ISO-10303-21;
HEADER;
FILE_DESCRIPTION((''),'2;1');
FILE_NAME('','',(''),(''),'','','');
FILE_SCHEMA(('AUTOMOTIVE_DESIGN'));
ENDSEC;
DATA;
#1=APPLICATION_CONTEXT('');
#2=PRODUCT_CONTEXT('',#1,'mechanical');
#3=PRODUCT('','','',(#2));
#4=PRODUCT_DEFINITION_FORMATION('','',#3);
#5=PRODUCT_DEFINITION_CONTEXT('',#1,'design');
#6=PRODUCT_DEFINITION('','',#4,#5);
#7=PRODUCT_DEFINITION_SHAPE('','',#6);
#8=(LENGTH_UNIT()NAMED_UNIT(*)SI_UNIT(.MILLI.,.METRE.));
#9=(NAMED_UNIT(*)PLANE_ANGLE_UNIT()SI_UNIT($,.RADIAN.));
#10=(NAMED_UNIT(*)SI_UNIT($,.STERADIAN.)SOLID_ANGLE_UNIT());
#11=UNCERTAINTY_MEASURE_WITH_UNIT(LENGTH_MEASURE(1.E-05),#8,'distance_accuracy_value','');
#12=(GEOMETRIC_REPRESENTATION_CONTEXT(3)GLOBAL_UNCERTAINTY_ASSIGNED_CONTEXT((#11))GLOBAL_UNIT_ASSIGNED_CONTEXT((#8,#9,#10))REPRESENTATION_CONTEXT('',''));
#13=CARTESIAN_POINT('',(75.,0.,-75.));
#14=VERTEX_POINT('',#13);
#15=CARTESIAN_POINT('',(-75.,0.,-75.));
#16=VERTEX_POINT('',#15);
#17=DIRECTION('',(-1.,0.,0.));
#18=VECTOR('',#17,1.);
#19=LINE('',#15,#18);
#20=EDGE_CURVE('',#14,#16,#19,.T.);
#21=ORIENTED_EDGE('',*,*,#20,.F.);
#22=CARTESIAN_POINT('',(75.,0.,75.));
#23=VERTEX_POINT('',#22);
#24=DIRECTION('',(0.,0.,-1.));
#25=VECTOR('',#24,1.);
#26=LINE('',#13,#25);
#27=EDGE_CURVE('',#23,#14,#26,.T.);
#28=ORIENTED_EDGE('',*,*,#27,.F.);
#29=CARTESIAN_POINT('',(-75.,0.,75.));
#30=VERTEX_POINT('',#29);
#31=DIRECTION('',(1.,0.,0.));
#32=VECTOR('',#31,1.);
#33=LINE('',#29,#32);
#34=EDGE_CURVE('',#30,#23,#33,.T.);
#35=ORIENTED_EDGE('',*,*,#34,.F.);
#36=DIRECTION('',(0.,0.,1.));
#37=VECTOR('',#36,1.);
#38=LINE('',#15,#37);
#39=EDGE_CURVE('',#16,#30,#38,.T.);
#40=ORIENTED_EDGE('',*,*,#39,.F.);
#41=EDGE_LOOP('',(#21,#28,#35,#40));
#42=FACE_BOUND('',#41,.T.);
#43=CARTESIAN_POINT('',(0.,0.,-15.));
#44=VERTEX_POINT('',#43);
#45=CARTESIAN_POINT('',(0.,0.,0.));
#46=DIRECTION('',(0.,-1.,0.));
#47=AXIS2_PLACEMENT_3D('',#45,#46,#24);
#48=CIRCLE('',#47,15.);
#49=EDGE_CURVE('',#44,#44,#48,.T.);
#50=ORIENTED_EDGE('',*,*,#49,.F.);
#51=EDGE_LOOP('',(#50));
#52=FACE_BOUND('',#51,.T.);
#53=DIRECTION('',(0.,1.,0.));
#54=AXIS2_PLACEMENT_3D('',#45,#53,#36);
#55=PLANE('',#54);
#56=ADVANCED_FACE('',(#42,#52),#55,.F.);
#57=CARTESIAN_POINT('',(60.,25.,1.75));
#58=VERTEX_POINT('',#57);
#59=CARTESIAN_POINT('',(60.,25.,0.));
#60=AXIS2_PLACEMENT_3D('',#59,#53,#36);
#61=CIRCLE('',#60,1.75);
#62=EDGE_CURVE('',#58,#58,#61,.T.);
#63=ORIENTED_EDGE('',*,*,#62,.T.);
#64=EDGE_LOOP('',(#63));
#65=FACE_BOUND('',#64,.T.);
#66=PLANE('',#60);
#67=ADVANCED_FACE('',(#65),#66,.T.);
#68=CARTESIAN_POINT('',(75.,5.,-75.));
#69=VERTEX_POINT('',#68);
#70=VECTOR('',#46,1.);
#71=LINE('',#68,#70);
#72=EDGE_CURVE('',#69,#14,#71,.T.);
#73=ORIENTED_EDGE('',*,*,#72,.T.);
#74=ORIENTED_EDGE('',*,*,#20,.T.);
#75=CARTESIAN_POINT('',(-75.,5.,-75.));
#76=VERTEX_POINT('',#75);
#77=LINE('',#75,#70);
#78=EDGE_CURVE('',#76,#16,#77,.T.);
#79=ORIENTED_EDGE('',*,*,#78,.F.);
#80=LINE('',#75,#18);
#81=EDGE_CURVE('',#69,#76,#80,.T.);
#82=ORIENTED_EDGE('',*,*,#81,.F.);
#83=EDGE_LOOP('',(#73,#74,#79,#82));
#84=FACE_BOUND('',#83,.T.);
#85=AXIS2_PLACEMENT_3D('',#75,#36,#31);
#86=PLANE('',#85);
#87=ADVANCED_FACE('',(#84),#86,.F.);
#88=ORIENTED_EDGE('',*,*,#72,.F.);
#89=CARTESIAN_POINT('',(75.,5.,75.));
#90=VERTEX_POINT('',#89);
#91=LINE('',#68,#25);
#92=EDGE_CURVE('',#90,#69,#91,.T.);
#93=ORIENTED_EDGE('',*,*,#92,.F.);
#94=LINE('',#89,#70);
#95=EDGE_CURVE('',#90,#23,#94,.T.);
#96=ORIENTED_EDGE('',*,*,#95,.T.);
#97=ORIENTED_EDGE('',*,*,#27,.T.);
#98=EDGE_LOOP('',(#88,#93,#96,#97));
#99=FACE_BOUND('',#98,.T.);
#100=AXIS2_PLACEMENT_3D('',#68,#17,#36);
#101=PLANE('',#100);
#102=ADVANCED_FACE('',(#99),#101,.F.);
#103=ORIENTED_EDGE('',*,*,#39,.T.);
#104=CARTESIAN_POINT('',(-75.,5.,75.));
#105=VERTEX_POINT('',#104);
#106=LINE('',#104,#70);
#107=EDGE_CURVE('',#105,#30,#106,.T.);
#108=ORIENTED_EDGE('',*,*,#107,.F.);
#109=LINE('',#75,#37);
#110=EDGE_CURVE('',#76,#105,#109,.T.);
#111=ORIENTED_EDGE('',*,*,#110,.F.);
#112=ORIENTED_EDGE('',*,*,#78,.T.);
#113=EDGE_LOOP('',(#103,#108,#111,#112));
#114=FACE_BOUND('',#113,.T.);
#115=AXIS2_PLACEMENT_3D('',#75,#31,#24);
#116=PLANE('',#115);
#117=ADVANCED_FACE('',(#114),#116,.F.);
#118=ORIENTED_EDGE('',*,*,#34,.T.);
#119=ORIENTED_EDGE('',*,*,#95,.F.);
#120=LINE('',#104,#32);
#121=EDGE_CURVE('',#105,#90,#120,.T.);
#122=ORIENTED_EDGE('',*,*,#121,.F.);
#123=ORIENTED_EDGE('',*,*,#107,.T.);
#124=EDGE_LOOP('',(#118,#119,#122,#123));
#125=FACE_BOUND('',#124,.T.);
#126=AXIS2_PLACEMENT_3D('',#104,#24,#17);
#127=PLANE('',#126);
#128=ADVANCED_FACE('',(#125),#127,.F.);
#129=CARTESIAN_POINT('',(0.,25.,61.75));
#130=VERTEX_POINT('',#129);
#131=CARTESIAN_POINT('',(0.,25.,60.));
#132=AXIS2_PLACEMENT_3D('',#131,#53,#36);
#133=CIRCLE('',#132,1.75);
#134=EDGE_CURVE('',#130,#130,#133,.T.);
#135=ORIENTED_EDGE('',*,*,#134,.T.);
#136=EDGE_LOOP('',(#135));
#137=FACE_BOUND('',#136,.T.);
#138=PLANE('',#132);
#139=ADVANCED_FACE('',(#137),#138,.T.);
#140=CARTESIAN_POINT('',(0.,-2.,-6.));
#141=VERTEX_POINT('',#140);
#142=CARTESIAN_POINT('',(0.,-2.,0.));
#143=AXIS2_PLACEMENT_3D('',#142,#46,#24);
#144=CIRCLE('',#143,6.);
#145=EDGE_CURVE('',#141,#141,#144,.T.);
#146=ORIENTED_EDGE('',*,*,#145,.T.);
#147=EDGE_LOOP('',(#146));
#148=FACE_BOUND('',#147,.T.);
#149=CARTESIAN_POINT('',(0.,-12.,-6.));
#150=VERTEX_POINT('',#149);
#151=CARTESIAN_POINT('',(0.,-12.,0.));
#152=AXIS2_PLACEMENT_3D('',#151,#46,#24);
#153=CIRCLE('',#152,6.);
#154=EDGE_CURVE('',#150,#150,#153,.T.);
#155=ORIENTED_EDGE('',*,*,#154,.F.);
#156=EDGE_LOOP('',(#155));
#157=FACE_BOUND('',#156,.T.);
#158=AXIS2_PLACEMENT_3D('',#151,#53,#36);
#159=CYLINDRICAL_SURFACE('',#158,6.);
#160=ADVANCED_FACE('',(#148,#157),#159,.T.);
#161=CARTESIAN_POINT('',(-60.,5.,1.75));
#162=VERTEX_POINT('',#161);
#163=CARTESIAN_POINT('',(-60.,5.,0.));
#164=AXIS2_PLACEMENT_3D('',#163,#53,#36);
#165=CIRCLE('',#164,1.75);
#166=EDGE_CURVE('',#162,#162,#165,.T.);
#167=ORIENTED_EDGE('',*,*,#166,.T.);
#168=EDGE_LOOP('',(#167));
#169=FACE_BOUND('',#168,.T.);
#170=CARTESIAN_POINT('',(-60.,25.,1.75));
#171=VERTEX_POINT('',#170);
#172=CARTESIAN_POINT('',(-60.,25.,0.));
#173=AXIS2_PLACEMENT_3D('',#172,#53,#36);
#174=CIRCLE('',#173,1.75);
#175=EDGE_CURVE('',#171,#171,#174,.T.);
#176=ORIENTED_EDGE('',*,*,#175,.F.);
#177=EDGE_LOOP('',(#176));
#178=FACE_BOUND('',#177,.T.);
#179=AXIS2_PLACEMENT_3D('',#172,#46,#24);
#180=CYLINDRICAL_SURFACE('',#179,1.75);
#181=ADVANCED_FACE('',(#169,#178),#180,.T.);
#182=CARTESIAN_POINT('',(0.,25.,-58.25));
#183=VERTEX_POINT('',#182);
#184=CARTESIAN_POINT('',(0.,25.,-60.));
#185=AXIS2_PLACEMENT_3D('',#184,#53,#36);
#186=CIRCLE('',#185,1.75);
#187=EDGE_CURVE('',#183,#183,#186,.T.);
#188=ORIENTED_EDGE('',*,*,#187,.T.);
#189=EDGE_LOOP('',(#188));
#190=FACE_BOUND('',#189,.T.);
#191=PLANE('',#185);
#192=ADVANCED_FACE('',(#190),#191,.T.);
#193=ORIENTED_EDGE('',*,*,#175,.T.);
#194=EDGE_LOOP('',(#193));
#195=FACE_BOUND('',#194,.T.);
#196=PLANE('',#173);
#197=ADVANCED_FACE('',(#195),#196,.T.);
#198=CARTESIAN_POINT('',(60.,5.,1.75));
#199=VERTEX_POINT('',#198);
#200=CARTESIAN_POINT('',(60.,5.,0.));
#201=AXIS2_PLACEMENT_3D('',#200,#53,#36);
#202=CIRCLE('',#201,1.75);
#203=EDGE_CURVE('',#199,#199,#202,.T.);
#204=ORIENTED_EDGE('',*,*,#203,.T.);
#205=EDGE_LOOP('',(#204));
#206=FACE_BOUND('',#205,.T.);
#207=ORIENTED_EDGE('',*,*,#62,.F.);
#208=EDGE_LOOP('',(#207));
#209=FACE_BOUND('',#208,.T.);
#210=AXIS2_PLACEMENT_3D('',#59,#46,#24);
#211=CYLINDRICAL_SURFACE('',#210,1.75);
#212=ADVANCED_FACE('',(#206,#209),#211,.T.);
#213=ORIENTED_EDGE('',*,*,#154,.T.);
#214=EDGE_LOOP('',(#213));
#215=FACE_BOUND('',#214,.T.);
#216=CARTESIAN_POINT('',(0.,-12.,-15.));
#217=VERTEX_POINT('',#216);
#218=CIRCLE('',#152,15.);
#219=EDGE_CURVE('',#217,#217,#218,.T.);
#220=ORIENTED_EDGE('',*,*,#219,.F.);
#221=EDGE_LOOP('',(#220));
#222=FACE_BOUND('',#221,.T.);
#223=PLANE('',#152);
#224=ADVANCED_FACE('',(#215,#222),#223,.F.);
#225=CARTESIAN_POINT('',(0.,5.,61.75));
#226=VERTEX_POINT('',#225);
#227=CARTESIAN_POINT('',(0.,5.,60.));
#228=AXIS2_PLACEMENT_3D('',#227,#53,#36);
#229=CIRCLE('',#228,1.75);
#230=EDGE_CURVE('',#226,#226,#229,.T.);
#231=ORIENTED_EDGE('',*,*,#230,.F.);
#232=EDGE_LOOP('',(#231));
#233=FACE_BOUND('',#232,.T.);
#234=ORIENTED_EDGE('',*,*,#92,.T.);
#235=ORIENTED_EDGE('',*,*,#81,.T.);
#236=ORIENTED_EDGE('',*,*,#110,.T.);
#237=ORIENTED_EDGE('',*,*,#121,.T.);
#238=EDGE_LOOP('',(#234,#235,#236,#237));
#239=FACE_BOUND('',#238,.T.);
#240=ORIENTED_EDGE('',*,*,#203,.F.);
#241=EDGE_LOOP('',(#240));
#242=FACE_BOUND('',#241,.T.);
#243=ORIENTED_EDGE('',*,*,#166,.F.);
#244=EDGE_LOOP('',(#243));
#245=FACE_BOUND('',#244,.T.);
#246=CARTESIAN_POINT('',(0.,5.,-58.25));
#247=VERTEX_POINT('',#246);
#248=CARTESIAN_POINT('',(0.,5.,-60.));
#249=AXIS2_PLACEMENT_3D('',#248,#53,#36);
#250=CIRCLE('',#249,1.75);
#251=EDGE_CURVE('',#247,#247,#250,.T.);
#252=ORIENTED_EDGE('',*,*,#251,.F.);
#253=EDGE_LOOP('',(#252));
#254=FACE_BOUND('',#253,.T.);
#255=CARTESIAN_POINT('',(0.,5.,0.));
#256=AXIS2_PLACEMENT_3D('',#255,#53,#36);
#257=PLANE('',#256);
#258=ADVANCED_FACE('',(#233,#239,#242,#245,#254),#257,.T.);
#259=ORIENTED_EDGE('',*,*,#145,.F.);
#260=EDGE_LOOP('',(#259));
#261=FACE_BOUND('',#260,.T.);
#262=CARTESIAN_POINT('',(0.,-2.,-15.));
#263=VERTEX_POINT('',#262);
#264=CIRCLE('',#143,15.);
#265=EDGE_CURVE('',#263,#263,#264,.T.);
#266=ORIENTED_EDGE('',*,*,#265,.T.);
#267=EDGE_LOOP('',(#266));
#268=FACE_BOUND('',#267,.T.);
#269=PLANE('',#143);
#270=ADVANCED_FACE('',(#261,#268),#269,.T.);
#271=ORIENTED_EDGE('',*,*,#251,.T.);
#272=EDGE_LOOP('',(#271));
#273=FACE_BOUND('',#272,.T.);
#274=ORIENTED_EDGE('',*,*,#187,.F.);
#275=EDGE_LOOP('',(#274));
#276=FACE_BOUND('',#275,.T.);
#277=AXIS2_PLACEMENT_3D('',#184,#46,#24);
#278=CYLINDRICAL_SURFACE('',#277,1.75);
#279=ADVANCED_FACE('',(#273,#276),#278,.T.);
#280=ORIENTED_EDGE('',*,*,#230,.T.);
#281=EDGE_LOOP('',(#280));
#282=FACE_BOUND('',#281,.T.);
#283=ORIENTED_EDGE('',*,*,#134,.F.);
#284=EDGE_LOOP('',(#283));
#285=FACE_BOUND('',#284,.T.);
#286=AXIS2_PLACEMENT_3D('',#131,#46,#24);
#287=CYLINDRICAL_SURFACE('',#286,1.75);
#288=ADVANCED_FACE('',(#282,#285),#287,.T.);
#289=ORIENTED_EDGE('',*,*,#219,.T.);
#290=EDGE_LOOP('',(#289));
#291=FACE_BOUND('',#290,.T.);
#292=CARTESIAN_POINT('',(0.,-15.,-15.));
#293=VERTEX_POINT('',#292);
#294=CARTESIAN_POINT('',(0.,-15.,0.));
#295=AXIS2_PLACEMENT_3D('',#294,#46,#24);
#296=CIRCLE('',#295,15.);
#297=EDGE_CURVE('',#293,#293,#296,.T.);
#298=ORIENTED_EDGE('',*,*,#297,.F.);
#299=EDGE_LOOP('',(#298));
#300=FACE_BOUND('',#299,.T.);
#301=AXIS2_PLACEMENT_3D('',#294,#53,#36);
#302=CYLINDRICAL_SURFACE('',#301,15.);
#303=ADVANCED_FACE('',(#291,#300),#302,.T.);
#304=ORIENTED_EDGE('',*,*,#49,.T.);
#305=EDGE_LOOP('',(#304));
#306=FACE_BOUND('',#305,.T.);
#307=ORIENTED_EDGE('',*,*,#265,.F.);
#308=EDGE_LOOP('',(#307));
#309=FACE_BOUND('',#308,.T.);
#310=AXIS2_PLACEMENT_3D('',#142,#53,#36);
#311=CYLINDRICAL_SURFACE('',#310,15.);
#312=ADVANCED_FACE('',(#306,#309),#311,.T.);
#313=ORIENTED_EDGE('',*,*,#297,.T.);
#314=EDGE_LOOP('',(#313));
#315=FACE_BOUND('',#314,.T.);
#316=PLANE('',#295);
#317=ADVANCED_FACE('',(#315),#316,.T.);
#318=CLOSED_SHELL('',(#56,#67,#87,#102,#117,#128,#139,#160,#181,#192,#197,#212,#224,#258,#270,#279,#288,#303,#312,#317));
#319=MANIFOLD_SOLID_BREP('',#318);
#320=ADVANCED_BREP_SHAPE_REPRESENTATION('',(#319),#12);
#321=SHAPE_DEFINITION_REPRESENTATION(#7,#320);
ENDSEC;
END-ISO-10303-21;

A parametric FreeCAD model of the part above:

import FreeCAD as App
import Part
import Sketcher


def add_polygon(sketch, points):
    """Adds a closed chain of lines whose ends are joined by coincident constraints."""
    first, n = sketch.GeometryCount, len(points)
    for a, b in zip(points, points[1:] + points[:1]):
        sketch.addGeometry(Part.LineSegment(App.Vector(*a, 0), App.Vector(*b, 0)), False)
    for i in range(n):
        sketch.addConstraint(Sketcher.Constraint("Coincident", first + i, 2, first + (i + 1) % n, 1))

doc = App.newDocument("Part")
params = doc.addObject("Spreadsheet::Sheet", "Params")
for row, (alias, value) in enumerate([
    ("sketch1_width", "150 mm"),
    ("pad1_length", "5 mm"),
    ("sketch2_diameter", "3.5 mm"),
    ("pad2_length", "20 mm"),
    ("sketch3_diameter", "30 mm"),
    ("pad3_length", "2 mm"),
    ("sketch4_diameter", "12 mm"),
    ("pad4_length", "10 mm"),
    ("sketch5_diameter", "30 mm"),
    ("pad5_length", "3 mm"),
], start=1):
    params.set(f"A{row}", alias)
    params.set(f"B{row}", "=" + value)
    params.setAlias(f"B{row}", alias)

body = doc.addObject("PartDesign::Body", "Body")

# Sketch on XZ plane
sketch1 = body.newObject("Sketcher::SketchObject", "Sketch")
sketch1.AttachmentSupport = (doc.getObject("XZ_Plane"), [""])
sketch1.MapMode = "FlatFace"
add_polygon(sketch1, [(-75, -75), (-75, 75), (75, 75), (75, -75)])  # lines 0-3
sketch1.addConstraint([
    Sketcher.Constraint("Vertical", 0),
    Sketcher.Constraint("Horizontal", 1),
    Sketcher.Constraint("Vertical", 2),
    Sketcher.Constraint("Horizontal", 3),
    Sketcher.Constraint("Symmetric", 0, 2, 2, 2, -1, 1),
    Sketcher.Constraint("Equal", 3, 0),
    Sketcher.Constraint("DistanceX", 1, 1, 1, 2, 150.0),
])
sketch1.setExpression("Constraints[10]", "Params.sketch1_width")
pad1 = body.newObject("PartDesign::Pad", "Pad")
pad1.Profile = sketch1
pad1.setExpression("Length", "Params.pad1_length")
pad1.Reversed = True

# Sketch on XZ plane
sketch2 = body.newObject("Sketcher::SketchObject", "Sketch001")
sketch2.AttachmentSupport = (doc.getObject("XZ_Plane"), [""])
sketch2.MapMode = "FlatFace"
sketch2.AttachmentOffset = App.Placement(App.Vector(0, 0, -5), App.Rotation())
sketch2.addGeometry([
    Part.Circle(App.Vector(-60, 0, 0), App.Vector(0, 0, 1), 1.8),
    Part.Circle(App.Vector(0, -60, 0), App.Vector(0, 0, 1), 1.8),
    Part.Circle(App.Vector(60, 0, 0), App.Vector(0, 0, 1), 1.8),
    Part.Circle(App.Vector(0, 60, 0), App.Vector(0, 0, 1), 1.8),
], False)
sketch2.addConstraint([
    Sketcher.Constraint("Equal", 0, 1),
    Sketcher.Constraint("Equal", 1, 2),
    Sketcher.Constraint("Equal", 2, 3),
    Sketcher.Constraint("Symmetric", 0, 3, 2, 3, -1, 1),
    Sketcher.Constraint("Symmetric", 1, 3, 3, 3, -1, 1),
    Sketcher.Constraint("PointOnObject", 0, 3, -1),
    Sketcher.Constraint("PointOnObject", 1, 3, -2),
    Sketcher.Constraint("Diameter", 0, 3.5),
    Sketcher.Constraint("DistanceX", 0, 3, -1, 1, 60.0),
    Sketcher.Constraint("DistanceY", 1, 3, -1, 1, 60.0),
])
sketch2.setExpression("Constraints[7]", "Params.sketch2_diameter")
pad2 = body.newObject("PartDesign::Pad", "Pad001")
pad2.Profile = sketch2
pad2.setExpression("Length", "Params.pad2_length")
pad2.Reversed = True

# Sketch on XZ plane
sketch3 = body.newObject("Sketcher::SketchObject", "Sketch002")
sketch3.AttachmentSupport = (doc.getObject("XZ_Plane"), [""])
sketch3.MapMode = "FlatFace"
sketch3.addGeometry(Part.Circle(App.Vector(0, 0, 0), App.Vector(0, 0, 1), 15), False)
sketch3.addConstraint([
    Sketcher.Constraint("Coincident", 0, 3, -1, 1),
    Sketcher.Constraint("Diameter", 0, 30.0),
])
sketch3.setExpression("Constraints[1]", "Params.sketch3_diameter")
pad3 = body.newObject("PartDesign::Pad", "Pad002")
pad3.Profile = sketch3
pad3.setExpression("Length", "Params.pad3_length")

# Sketch on XZ plane
sketch4 = body.newObject("Sketcher::SketchObject", "Sketch003")
sketch4.AttachmentSupport = (doc.getObject("XZ_Plane"), [""])
sketch4.MapMode = "FlatFace"
sketch4.AttachmentOffset = App.Placement(App.Vector(0, 0, 2), App.Rotation())
sketch4.addGeometry(Part.Circle(App.Vector(0, 0, 0), App.Vector(0, 0, 1), 6), False)
sketch4.addConstraint([
    Sketcher.Constraint("Coincident", 0, 3, -1, 1),
    Sketcher.Constraint("Diameter", 0, 12.0),
])
sketch4.setExpression("Constraints[1]", "Params.sketch4_diameter")
pad4 = body.newObject("PartDesign::Pad", "Pad003")
pad4.Profile = sketch4
pad4.setExpression("Length", "Params.pad4_length")

# Sketch on XZ plane
sketch5 = body.newObject("Sketcher::SketchObject", "Sketch004")
sketch5.AttachmentSupport = (doc.getObject("XZ_Plane"), [""])
sketch5.MapMode = "FlatFace"
sketch5.AttachmentOffset = App.Placement(App.Vector(0, 0, 12), App.Rotation())
sketch5.addGeometry(Part.Circle(App.Vector(0, 0, 0), App.Vector(0, 0, 1), 15), False)
sketch5.addConstraint([
    Sketcher.Constraint("Coincident", 0, 3, -1, 1),
    Sketcher.Constraint("Diameter", 0, 30.0),
])
sketch5.setExpression("Constraints[1]", "Params.sketch5_diameter")
pad5 = body.newObject("PartDesign::Pad", "Pad004")
pad5.Profile = sketch5
pad5.setExpression("Length", "Params.pad5_length")

doc.recompute()
